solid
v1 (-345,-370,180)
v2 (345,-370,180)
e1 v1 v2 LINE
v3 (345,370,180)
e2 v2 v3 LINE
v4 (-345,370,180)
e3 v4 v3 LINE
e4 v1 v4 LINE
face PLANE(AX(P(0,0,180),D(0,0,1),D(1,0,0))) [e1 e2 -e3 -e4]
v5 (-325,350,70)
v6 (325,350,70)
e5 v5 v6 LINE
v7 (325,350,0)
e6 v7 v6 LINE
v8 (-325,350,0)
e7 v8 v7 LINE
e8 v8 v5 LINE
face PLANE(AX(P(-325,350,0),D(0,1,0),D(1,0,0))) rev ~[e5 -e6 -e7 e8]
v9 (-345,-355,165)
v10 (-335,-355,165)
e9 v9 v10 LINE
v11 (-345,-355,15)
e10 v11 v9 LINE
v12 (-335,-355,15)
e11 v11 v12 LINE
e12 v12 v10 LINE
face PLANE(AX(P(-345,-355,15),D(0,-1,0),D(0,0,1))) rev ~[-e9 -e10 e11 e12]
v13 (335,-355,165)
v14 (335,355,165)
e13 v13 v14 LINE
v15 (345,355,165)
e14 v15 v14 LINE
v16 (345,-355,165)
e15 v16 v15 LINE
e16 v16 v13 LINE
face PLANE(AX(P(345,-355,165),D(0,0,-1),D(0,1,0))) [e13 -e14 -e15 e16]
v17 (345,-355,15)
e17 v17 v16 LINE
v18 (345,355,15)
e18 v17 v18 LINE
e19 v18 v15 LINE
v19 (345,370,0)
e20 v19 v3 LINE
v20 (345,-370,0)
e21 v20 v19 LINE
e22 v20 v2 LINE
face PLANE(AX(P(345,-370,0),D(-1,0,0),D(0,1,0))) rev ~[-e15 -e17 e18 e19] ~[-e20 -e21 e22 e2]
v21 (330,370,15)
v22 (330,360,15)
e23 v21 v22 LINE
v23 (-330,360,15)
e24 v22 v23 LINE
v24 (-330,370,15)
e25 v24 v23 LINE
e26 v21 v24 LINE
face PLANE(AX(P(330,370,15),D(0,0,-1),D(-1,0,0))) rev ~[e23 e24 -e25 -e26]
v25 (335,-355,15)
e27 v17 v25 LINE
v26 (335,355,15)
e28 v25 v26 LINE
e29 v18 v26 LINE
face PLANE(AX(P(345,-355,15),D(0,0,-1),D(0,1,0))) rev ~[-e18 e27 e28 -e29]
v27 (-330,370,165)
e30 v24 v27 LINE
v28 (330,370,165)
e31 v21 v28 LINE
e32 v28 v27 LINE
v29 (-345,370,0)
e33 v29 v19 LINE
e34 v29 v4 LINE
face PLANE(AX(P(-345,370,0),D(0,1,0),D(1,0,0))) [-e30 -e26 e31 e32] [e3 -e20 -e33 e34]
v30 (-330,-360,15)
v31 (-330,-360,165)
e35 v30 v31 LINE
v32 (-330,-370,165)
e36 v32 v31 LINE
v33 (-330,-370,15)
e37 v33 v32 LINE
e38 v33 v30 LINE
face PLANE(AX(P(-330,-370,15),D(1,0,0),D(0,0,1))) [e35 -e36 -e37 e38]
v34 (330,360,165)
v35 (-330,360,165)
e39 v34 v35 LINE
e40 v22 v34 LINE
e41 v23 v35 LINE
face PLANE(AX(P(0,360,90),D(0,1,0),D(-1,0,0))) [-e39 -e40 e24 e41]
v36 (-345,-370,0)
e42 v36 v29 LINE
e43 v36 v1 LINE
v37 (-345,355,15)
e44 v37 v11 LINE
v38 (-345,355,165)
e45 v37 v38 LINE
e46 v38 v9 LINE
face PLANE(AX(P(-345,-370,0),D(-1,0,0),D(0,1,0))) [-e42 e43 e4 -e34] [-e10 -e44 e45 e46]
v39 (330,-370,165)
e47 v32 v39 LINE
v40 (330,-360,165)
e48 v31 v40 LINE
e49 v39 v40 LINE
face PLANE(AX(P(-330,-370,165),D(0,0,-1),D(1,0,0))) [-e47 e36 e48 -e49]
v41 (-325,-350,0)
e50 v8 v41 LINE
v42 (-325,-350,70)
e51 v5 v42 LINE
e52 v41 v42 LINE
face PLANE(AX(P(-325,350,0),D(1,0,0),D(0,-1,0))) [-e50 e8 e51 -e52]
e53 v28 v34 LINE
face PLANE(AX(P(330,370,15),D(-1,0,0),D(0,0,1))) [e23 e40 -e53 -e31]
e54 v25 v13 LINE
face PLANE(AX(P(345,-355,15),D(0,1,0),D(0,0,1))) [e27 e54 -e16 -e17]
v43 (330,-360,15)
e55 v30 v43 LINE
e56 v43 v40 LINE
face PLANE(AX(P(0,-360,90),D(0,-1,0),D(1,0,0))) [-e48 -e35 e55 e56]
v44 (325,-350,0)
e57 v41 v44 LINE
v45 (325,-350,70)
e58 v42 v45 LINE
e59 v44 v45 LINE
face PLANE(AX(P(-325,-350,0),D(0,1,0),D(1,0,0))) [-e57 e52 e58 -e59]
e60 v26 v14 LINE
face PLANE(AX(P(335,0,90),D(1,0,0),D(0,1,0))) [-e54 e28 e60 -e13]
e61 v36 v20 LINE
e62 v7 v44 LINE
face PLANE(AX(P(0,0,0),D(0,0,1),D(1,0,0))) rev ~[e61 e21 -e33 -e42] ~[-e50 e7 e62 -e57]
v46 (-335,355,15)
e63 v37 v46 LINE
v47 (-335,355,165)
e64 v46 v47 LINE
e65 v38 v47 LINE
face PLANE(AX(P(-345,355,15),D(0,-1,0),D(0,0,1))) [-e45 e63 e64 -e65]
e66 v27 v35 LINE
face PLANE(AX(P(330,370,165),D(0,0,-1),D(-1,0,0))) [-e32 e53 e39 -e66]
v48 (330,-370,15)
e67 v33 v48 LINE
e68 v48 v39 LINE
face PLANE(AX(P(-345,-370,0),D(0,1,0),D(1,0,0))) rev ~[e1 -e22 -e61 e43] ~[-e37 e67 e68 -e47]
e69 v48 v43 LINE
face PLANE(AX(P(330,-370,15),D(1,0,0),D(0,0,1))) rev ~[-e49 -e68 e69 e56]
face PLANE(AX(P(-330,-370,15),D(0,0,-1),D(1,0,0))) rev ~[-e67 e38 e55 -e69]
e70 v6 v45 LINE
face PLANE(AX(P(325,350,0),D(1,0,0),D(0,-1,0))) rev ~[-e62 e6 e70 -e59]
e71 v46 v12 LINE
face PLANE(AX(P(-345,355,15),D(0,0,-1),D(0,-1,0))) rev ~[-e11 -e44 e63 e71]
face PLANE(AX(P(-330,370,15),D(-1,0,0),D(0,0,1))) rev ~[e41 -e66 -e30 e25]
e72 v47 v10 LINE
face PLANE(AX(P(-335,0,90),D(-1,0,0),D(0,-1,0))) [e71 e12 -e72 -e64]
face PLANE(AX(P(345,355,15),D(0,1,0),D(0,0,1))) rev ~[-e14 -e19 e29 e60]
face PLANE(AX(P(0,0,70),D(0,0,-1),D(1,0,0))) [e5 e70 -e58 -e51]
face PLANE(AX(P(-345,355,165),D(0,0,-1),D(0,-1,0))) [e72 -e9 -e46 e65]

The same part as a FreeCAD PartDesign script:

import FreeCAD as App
import Part
import Sketcher

V = App.Vector
Q = App.Units.Quantity

doc = App.newDocument("Part")
body = doc.addObject("PartDesign::Body", "Body")

# Sketch on XY plane
sketch1 = body.newObject("Sketcher::SketchObject", "Sketch")
sketch1.AttachmentSupport = (doc.getObject("XY_Plane"), [""])
sketch1.MapMode = "FlatFace"
sketch1.addGeometry(Part.LineSegment(V(-345, 370, 0), V(-345, -370, 0)), False)
sketch1.addGeometry(Part.LineSegment(V(-345, -370, 0), V(345, -370, 0)), False)
sketch1.addGeometry(Part.LineSegment(V(345, -370, 0), V(345, 370, 0)), False)
sketch1.addGeometry(Part.LineSegment(V(345, 370, 0), V(-345, 370, 0)), False)
sketch1.addConstraint(Sketcher.Constraint("Coincident", 0, 2, 1, 1))
sketch1.addConstraint(Sketcher.Constraint("Coincident", 1, 2, 2, 1))
sketch1.addConstraint(Sketcher.Constraint("Coincident", 2, 2, 3, 1))
sketch1.addConstraint(Sketcher.Constraint("Coincident", 3, 2, 0, 1))
sketch1.addConstraint(Sketcher.Constraint("Vertical", 0))
sketch1.addConstraint(Sketcher.Constraint("Horizontal", 1))
sketch1.addConstraint(Sketcher.Constraint("Vertical", 2))
sketch1.addConstraint(Sketcher.Constraint("Horizontal", 3))
sketch1.addConstraint(Sketcher.Constraint("Symmetric", 0, 2, 2, 2, -1, 1))
sketch1.addConstraint(Sketcher.Constraint("DistanceX", 1, 1, 1, 2, Q("690 mm")))
sketch1.addConstraint(Sketcher.Constraint("DistanceY", 0, 2, 0, 1, Q("740 mm")))
pad1 = body.newObject("PartDesign::Pad", "Pad")
pad1.Profile = sketch1
pad1.Length = 180

# Sketch on XY plane
sketch2 = body.newObject("Sketcher::SketchObject", "Sketch001")
sketch2.AttachmentSupport = (doc.getObject("XY_Plane"), [""])
sketch2.MapMode = "FlatFace"
sketch2.addGeometry(Part.LineSegment(V(-325, -350, 0), V(-325, 350, 0)), False)
sketch2.addGeometry(Part.LineSegment(V(-325, 350, 0), V(325, 350, 0)), False)
sketch2.addGeometry(Part.LineSegment(V(325, 350, 0), V(325, -350, 0)), False)
sketch2.addGeometry(Part.LineSegment(V(325, -350, 0), V(-325, -350, 0)), False)
sketch2.addConstraint(Sketcher.Constraint("Coincident", 0, 2, 1, 1))
sketch2.addConstraint(Sketcher.Constraint("Coincident", 1, 2, 2, 1))
sketch2.addConstraint(Sketcher.Constraint("Coincident", 2, 2, 3, 1))
sketch2.addConstraint(Sketcher.Constraint("Coincident", 3, 2, 0, 1))
sketch2.addConstraint(Sketcher.Constraint("Vertical", 0))
sketch2.addConstraint(Sketcher.Constraint("Horizontal", 1))
sketch2.addConstraint(Sketcher.Constraint("Vertical", 2))
sketch2.addConstraint(Sketcher.Constraint("Horizontal", 3))
sketch2.addConstraint(Sketcher.Constraint("Symmetric", 0, 2, 2, 2, -1, 1))
sketch2.addConstraint(Sketcher.Constraint("DistanceX", 1, 1, 1, 2, Q("650 mm")))
sketch2.addConstraint(Sketcher.Constraint("DistanceY", 0, 1, 0, 2, Q("700 mm")))
pocket1 = body.newObject("PartDesign::Pocket", "Pocket")
pocket1.Profile = sketch2
pocket1.Length = 70
pocket1.Reversed = True

# Sketch on YZ plane
sketch3 = body.newObject("Sketcher::SketchObject", "Sketch002")
sketch3.AttachmentSupport = (doc.getObject("YZ_Plane"), [""])
sketch3.MapMode = "FlatFace"
sketch3.AttachmentOffset = App.Placement(V(0, 0, 345), App.Rotation())
sketch3.addGeometry(Part.LineSegment(V(-355, 165, 0), V(-355, 15, 0)), False)
sketch3.addGeometry(Part.LineSegment(V(-355, 15, 0), V(355, 15, 0)), False)
sketch3.addGeometry(Part.LineSegment(V(355, 15, 0), V(355, 165, 0)), False)
sketch3.addGeometry(Part.LineSegment(V(355, 165, 0), V(-355, 165, 0)), False)
sketch3.addConstraint(Sketcher.Constraint("Coincident", 0, 2, 1, 1))
sketch3.addConstraint(Sketcher.Constraint("Coincident", 1, 2, 2, 1))
sketch3.addConstraint(Sketcher.Constraint("Coincident", 2, 2, 3, 1))
sketch3.addConstraint(Sketcher.Constraint("Coincident", 3, 2, 0, 1))
sketch3.addConstraint(Sketcher.Constraint("Vertical", 0))
sketch3.addConstraint(Sketcher.Constraint("Horizontal", 1))
sketch3.addConstraint(Sketcher.Constraint("Vertical", 2))
sketch3.addConstraint(Sketcher.Constraint("Horizontal", 3))
sketch3.addConstraint(Sketcher.Constraint("DistanceX", 1, 1, 1, 2, Q("710 mm")))
sketch3.addConstraint(Sketcher.Constraint("DistanceY", 0, 2, 0, 1, Q("150 mm")))
sketch3.addConstraint(Sketcher.Constraint("DistanceX", 0, 2, -1, 1, Q("355 mm")))
sketch3.addConstraint(Sketcher.Constraint("DistanceY", -1, 1, 0, 2, Q("15 mm")))
pocket2 = body.newObject("PartDesign::Pocket", "Pocket001")
pocket2.Profile = sketch3
pocket2.Length = 10

# Sketch on XZ plane
sketch4 = body.newObject("Sketcher::SketchObject", "Sketch003")
sketch4.AttachmentSupport = (doc.getObject("XZ_Plane"), [""])
sketch4.MapMode = "FlatFace"
sketch4.AttachmentOffset = App.Placement(V(0, 0, -370), App.Rotation())
sketch4.addGeometry(Part.LineSegment(V(330, 165, 0), V(330, 15, 0)), False)
sketch4.addGeometry(Part.LineSegment(V(330, 15, 0), V(-330, 15, 0)), False)
sketch4.addGeometry(Part.LineSegment(V(-330, 15, 0), V(-330, 165, 0)), False)
sketch4.addGeometry(Part.LineSegment(V(-330, 165, 0), V(330, 165, 0)), False)
sketch4.addConstraint(Sketcher.Constraint("Coincident", 0, 2, 1, 1))
sketch4.addConstraint(Sketcher.Constraint("Coincident", 1, 2, 2, 1))
sketch4.addConstraint(Sketcher.Constraint("Coincident", 2, 2, 3, 1))
sketch4.addConstraint(Sketcher.Constraint("Coincident", 3, 2, 0, 1))
sketch4.addConstraint(Sketcher.Constraint("Vertical", 0))
sketch4.addConstraint(Sketcher.Constraint("Horizontal", 1))
sketch4.addConstraint(Sketcher.Constraint("Vertical", 2))
sketch4.addConstraint(Sketcher.Constraint("Horizontal", 3))
sketch4.addConstraint(Sketcher.Constraint("DistanceX", 1, 2, 1, 1, Q("660 mm")))
sketch4.addConstraint(Sketcher.Constraint("DistanceY", 0, 2, 0, 1, Q("150 mm")))
sketch4.addConstraint(Sketcher.Constraint("DistanceX", -1, 1, 0, 2, Q("330 mm")))
sketch4.addConstraint(Sketcher.Constraint("DistanceY", -1, 1, 0, 2, Q("15 mm")))
pocket3 = body.newObject("PartDesign::Pocket", "Pocket002")
pocket3.Profile = sketch4
pocket3.Length = 10
pocket3.Reversed = True

# Sketch on YZ plane
sketch5 = body.newObject("Sketcher::SketchObject", "Sketch004")
sketch5.AttachmentSupport = (doc.getObject("YZ_Plane"), [""])
sketch5.MapMode = "FlatFace"
sketch5.AttachmentOffset = App.Placement(V(0, 0, -345), App.Rotation())
sketch5.addGeometry(Part.LineSegment(V(355, 165, 0), V(355, 15, 0)), False)
sketch5.addGeometry(Part.LineSegment(V(355, 15, 0), V(-355, 15, 0)), False)
sketch5.addGeometry(Part.LineSegment(V(-355, 15, 0), V(-355, 165, 0)), False)
sketch5.addGeometry(Part.LineSegment(V(-355, 165, 0), V(355, 165, 0)), False)
sketch5.addConstraint(Sketcher.Constraint("Coincident", 0, 2, 1, 1))
sketch5.addConstraint(Sketcher.Constraint("Coincident", 1, 2, 2, 1))
sketch5.addConstraint(Sketcher.Constraint("Coincident", 2, 2, 3, 1))
sketch5.addConstraint(Sketcher.Constraint("Coincident", 3, 2, 0, 1))
sketch5.addConstraint(Sketcher.Constraint("Vertical", 0))
sketch5.addConstraint(Sketcher.Constraint("Horizontal", 1))
sketch5.addConstraint(Sketcher.Constraint("Vertical", 2))
sketch5.addConstraint(Sketcher.Constraint("Horizontal", 3))
sketch5.addConstraint(Sketcher.Constraint("DistanceX", 1, 2, 1, 1, Q("710 mm")))
sketch5.addConstraint(Sketcher.Constraint("DistanceY", 0, 2, 0, 1, Q("150 mm")))
sketch5.addConstraint(Sketcher.Constraint("DistanceX", -1, 1, 0, 2, Q("355 mm")))
sketch5.addConstraint(Sketcher.Constraint("DistanceY", -1, 1, 0, 2, Q("15 mm")))
pocket4 = body.newObject("PartDesign::Pocket", "Pocket003")
pocket4.Profile = sketch5
pocket4.Length = 10
pocket4.Reversed = True

# Sketch on XZ plane
sketch6 = body.newObject("Sketcher::SketchObject", "Sketch005")
sketch6.AttachmentSupport = (doc.getObject("XZ_Plane"), [""])
sketch6.MapMode = "FlatFace"
sketch6.AttachmentOffset = App.Placement(V(0, 0, 370), App.Rotation())
sketch6.addGeometry(Part.LineSegment(V(-330, 165, 0), V(-330, 15, 0)), False)
sketch6.addGeometry(Part.LineSegment(V(-330, 15, 0), V(330, 15, 0)), False)
sketch6.addGeometry(Part.LineSegment(V(330, 15, 0), V(330, 165, 0)), False)
sketch6.addGeometry(Part.LineSegment(V(330, 165, 0), V(-330, 165, 0)), False)
sketch6.addConstraint(Sketcher.Constraint("Coincident", 0, 2, 1, 1))
sketch6.addConstraint(Sketcher.Constraint("Coincident", 1, 2, 2, 1))
sketch6.addConstraint(Sketcher.Constraint("Coincident", 2, 2, 3, 1))
sketch6.addConstraint(Sketcher.Constraint("Coincident", 3, 2, 0, 1))
sketch6.addConstraint(Sketcher.Constraint("Vertical", 0))
sketch6.addConstraint(Sketcher.Constraint("Horizontal", 1))
sketch6.addConstraint(Sketcher.Constraint("Vertical", 2))
sketch6.addConstraint(Sketcher.Constraint("Horizontal", 3))
sketch6.addConstraint(Sketcher.Constraint("DistanceX", 1, 1, 1, 2, Q("660 mm")))
sketch6.addConstraint(Sketcher.Constraint("DistanceY", 0, 2, 0, 1, Q("150 mm")))
sketch6.addConstraint(Sketcher.Constraint("DistanceX", 0, 2, -1, 1, Q("330 mm")))
sketch6.addConstraint(Sketcher.Constraint("DistanceY", -1, 1, 0, 2, Q("15 mm")))
pocket5 = body.newObject("PartDesign::Pocket", "Pocket004")
pocket5.Profile = sketch6
pocket5.Length = 10

doc.recompute()
